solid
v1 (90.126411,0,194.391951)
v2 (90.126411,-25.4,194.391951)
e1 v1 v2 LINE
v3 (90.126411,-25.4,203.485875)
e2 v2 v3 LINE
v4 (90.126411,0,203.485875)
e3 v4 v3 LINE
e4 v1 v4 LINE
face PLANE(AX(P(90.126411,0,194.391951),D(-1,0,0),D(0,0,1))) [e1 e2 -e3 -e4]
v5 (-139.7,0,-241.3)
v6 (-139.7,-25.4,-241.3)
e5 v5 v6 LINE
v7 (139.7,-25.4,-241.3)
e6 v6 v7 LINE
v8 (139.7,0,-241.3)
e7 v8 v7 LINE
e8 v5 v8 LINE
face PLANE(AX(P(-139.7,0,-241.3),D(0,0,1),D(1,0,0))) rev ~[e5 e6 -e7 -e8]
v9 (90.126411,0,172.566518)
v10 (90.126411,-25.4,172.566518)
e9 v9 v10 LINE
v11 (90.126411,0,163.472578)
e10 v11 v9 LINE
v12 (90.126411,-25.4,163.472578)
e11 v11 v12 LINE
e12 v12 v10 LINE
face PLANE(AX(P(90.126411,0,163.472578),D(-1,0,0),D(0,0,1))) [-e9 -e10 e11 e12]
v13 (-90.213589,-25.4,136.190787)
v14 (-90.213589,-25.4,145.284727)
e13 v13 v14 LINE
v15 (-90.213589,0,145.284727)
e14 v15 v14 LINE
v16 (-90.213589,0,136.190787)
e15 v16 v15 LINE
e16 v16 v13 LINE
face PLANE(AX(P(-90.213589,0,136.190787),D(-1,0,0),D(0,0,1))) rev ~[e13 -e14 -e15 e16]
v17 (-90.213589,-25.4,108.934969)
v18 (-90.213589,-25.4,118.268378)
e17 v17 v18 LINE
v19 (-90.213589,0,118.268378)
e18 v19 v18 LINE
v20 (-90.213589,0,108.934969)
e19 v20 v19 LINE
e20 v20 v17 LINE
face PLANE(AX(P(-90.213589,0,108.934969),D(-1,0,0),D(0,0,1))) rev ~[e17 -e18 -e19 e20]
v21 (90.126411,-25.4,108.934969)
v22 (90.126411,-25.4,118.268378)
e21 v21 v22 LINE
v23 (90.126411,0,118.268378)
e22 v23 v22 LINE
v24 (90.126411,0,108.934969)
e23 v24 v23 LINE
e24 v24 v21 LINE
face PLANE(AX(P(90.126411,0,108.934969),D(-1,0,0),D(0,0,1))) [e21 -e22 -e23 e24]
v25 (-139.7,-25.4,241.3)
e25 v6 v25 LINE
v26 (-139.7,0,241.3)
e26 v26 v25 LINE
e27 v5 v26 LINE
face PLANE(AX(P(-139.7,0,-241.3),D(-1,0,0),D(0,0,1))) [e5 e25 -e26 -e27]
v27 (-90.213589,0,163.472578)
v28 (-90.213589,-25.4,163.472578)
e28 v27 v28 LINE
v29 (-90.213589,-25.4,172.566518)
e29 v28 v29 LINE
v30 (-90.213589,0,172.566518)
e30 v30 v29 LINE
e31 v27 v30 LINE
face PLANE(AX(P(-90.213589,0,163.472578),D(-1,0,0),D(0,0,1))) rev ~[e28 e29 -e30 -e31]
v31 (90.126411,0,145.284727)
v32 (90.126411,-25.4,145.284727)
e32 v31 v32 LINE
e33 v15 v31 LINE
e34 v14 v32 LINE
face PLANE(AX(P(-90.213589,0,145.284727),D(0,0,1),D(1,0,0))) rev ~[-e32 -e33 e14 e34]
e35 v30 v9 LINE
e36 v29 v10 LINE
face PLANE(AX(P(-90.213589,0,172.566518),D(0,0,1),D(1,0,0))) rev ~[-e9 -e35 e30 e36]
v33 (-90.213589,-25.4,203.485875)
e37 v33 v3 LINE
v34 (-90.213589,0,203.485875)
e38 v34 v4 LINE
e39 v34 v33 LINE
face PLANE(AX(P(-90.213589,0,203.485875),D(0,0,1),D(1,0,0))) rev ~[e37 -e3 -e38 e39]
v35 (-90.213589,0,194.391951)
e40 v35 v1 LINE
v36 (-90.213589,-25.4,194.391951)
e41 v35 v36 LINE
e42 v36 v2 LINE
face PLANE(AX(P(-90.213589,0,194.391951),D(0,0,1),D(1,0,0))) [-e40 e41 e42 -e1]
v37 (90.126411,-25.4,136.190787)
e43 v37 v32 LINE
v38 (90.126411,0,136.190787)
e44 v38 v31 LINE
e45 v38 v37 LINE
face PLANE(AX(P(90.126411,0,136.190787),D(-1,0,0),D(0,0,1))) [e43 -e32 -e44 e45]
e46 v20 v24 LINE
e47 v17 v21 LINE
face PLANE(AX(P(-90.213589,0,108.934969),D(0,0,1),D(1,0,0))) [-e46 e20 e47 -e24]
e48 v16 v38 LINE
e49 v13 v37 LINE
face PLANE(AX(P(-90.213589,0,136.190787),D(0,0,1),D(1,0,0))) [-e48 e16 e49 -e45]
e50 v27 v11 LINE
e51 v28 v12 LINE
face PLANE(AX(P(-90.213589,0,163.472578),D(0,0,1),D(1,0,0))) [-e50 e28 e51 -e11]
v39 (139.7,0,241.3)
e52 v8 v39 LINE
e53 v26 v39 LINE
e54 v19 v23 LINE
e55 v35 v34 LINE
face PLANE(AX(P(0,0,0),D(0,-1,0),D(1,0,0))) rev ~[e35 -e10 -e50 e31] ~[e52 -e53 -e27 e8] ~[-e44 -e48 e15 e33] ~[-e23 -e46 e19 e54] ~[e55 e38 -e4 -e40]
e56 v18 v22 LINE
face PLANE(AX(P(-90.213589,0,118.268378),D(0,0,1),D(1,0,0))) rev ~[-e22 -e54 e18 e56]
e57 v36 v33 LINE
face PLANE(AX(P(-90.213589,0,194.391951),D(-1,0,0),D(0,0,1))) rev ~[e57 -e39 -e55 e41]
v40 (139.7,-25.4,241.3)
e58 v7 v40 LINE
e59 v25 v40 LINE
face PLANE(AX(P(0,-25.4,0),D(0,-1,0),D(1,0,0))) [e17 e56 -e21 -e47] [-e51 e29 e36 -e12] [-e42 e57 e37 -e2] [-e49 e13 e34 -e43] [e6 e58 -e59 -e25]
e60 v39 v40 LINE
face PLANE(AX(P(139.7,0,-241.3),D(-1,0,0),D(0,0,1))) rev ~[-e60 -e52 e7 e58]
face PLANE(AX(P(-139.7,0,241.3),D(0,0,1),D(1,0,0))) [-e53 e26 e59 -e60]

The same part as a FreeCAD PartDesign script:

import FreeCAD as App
import Part
import Sketcher
from FreeCAD import Vector
Q = App.Units.Quantity


def add_polygon(sketch, points):
    """Adds a closed chain of lines whose ends are joined by coincident constraints."""
    first, n = sketch.GeometryCount, len(points)
    for a, b in zip(points, points[1:] + points[:1]):
        sketch.addGeometry(Part.LineSegment(App.Vector(*a, 0), App.Vector(*b, 0)), False)
    for i in range(n):
        sketch.addConstraint(Sketcher.Constraint("Coincident", first + i, 2, first + (i + 1) % n, 1))

doc = App.newDocument("Part")
body = doc.addObject("PartDesign::Body", "Body")

sketch1 = body.newObject("Sketcher::SketchObject", "Sketch")
sketch1.AttachmentSupport = (doc.getObject("XZ_Plane"), [""])
sketch1.MapMode = "FlatFace"
add_polygon(sketch1, [(-140, 241), (-140, -241), (140, -241), (140, 241)])
add_polygon(sketch1, [(90, 109), (-90, 109), (-90, 118), (90, 118)])
add_polygon(sketch1, [(90, 136), (-90, 136), (-90, 145), (90, 145)])
add_polygon(sketch1, [(90, 163), (-90, 163), (-90, 173), (90, 173)])
add_polygon(sketch1, [(90, 194), (-90, 194), (-90, 203), (90, 203)])
sketch1.addConstraint(Sketcher.Constraint("Vertical", 0))
sketch1.addConstraint(Sketcher.Constraint("Horizontal", 1))
sketch1.addConstraint(Sketcher.Constraint("Vertical", 2))
sketch1.addConstraint(Sketcher.Constraint("Horizontal", 3))
sketch1.addConstraint(Sketcher.Constraint("Horizontal", 4))
sketch1.addConstraint(Sketcher.Constraint("Vertical", 5))
sketch1.addConstraint(Sketcher.Constraint("Horizontal", 6))
sketch1.addConstraint(Sketcher.Constraint("Vertical", 7))
sketch1.addConstraint(Sketcher.Constraint("Horizontal", 8))
sketch1.addConstraint(Sketcher.Constraint("Vertical", 9))
sketch1.addConstraint(Sketcher.Constraint("Horizontal", 10))
sketch1.addConstraint(Sketcher.Constraint("Vertical", 11))
sketch1.addConstraint(Sketcher.Constraint("Horizontal", 12))
sketch1.addConstraint(Sketcher.Constraint("Vertical", 13))
sketch1.addConstraint(Sketcher.Constraint("Horizontal", 14))
sketch1.addConstraint(Sketcher.Constraint("Vertical", 15))
sketch1.addConstraint(Sketcher.Constraint("Horizontal", 16))
sketch1.addConstraint(Sketcher.Constraint("Vertical", 17))
sketch1.addConstraint(Sketcher.Constraint("Horizontal", 18))
sketch1.addConstraint(Sketcher.Constraint("Vertical", 19))
sketch1.addConstraint(Sketcher.Constraint("Symmetric", 0, 2, 2, 2, -1, 1))
sketch1.addConstraint(Sketcher.Constraint("Vertical", 5, 2, 8, 2))
sketch1.addConstraint(Sketcher.Constraint("Vertical", 7, 2, 10, 2))
sketch1.addConstraint(Sketcher.Constraint("Vertical", 9, 2, 12, 2))
sketch1.addConstraint(Sketcher.Constraint("Vertical", 11, 2, 14, 2))
sketch1.addConstraint(Sketcher.Constraint("Vertical", 13, 2, 16, 2))
sketch1.addConstraint(Sketcher.Constraint("Vertical", 15, 2, 18, 2))
sketch1.addConstraint(Sketcher.Constraint("Equal", 11, 13))
sketch1.addConstraint(Sketcher.Constraint("DistanceX", 1, 1, 1, 2, Q("11 in")))
sketch1.addConstraint(Sketcher.Constraint("DistanceY", 0, 2, 0, 1, Q("19 in")))
sketch1.addConstraint(Sketcher.Constraint("DistanceX", 4, 2, 4, 1, Q("7.1 in")))
sketch1.addConstraint(Sketcher.Constraint("DistanceY", 5, 1, 5, 2, Q("9.333409 mm")))
sketch1.addConstraint(Sketcher.Constraint("DistanceY", 9, 1, 9, 2, Q("9.09394 mm")))
sketch1.addConstraint(Sketcher.Constraint("DistanceY", 5, 2, 12, 2, Q("45.2042 mm")))
sketch1.addConstraint(Sketcher.Constraint("DistanceY", 17, 1, 17, 2, Q("9.093925 mm")))
sketch1.addConstraint(Sketcher.Constraint("DistanceX", 4, 2, -1, 1, Q("90.213589 mm")))
sketch1.addConstraint(Sketcher.Constraint("DistanceY", -1, 1, 4, 2, Q("108.934969 mm")))
sketch1.addConstraint(Sketcher.Constraint("DistanceY", -1, 1, 16, 2, Q("194.391951 mm")))
sketch1.addConstraint(Sketcher.Constraint("DistanceY", 5, 2, 8, 2, Q("17.922409 mm")))
pad1 = body.newObject("PartDesign::Pad", "Pad")
pad1.Profile = sketch1
pad1.Length = Q("1 in")

sketch2 = body.newObject("Sketcher::SketchObject", "Sketch001")
sketch2.AttachmentSupport = (doc.getObject("XZ_Plane"), [""])
sketch2.MapMode = "FlatFace"
add_polygon(sketch2, [(-140, 241), (-140, -241), (140, -241), (140, 241)])
add_polygon(sketch2, [(90, 109), (-90, 109), (-90, 118), (90, 118)])
add_polygon(sketch2, [(90, 136), (-90, 136), (-90, 145), (90, 145)])
add_polygon(sketch2, [(90, 163), (-90, 163), (-90, 173), (90, 173)])
add_polygon(sketch2, [(90, 194), (-90, 194), (-90, 203), (90, 203)])
sketch2.addConstraint(Sketcher.Constraint("Vertical", 0))
sketch2.addConstraint(Sketcher.Constraint("Horizontal", 1))
sketch2.addConstraint(Sketcher.Constraint("Vertical", 2))
sketch2.addConstraint(Sketcher.Constraint("Horizontal", 3))
sketch2.addConstraint(Sketcher.Constraint("Horizontal", 4))
sketch2.addConstraint(Sketcher.Constraint("Vertical", 5))
sketch2.addConstraint(Sketcher.Constraint("Horizontal", 6))
sketch2.addConstraint(Sketcher.Constraint("Vertical", 7))
sketch2.addConstraint(Sketcher.Constraint("Horizontal", 8))
sketch2.addConstraint(Sketcher.Constraint("Vertical", 9))
sketch2.addConstraint(Sketcher.Constraint("Horizontal", 10))
sketch2.addConstraint(Sketcher.Constraint("Vertical", 11))
sketch2.addConstraint(Sketcher.Constraint("Horizontal", 12))
sketch2.addConstraint(Sketcher.Constraint("Vertical", 13))
sketch2.addConstraint(Sketcher.Constraint("Horizontal", 14))
sketch2.addConstraint(Sketcher.Constraint("Vertical", 15))
sketch2.addConstraint(Sketcher.Constraint("Horizontal", 16))
sketch2.addConstraint(Sketcher.Constraint("Vertical", 17))
sketch2.addConstraint(Sketcher.Constraint("Horizontal", 18))
sketch2.addConstraint(Sketcher.Constraint("Vertical", 19))
sketch2.addConstraint(Sketcher.Constraint("Symmetric", 0, 2, 2, 2, -1, 1))
sketch2.addConstraint(Sketcher.Constraint("Vertical", 5, 2, 8, 2))
sketch2.addConstraint(Sketcher.Constraint("Vertical", 7, 2, 10, 2))
sketch2.addConstraint(Sketcher.Constraint("Vertical", 9, 2, 12, 2))
sketch2.addConstraint(Sketcher.Constraint("Vertical", 11, 2, 14, 2))
sketch2.addConstraint(Sketcher.Constraint("Vertical", 13, 2, 16, 2))
sketch2.addConstraint(Sketcher.Constraint("Vertical", 15, 2, 18, 2))
sketch2.addConstraint(Sketcher.Constraint("Equal", 11, 13))
sketch2.addConstraint(Sketcher.Constraint("DistanceX", 1, 1, 1, 2, Q("11 in")))
sketch2.addConstraint(Sketcher.Constraint("DistanceY", 0, 2, 0, 1, Q("19 in")))
sketch2.addConstraint(Sketcher.Constraint("DistanceX", 4, 2, 4, 1, Q("7.1 in")))
sketch2.addConstraint(Sketcher.Constraint("DistanceY", 5, 1, 5, 2, Q("9.333409 mm")))
sketch2.addConstraint(Sketcher.Constraint("DistanceY", 9, 1, 9, 2, Q("9.09394 mm")))
sketch2.addConstraint(Sketcher.Constraint("DistanceY", 5, 2, 12, 2, Q("45.2042 mm")))
sketch2.addConstraint(Sketcher.Constraint("DistanceY", 17, 1, 17, 2, Q("9.093925 mm")))
sketch2.addConstraint(Sketcher.Constraint("DistanceX", 4, 2, -1, 1, Q("90.213589 mm")))
sketch2.addConstraint(Sketcher.Constraint("DistanceY", -1, 1, 4, 2, Q("108.934969 mm")))
sketch2.addConstraint(Sketcher.Constraint("DistanceY", -1, 1, 16, 2, Q("194.391951 mm")))
sketch2.addConstraint(Sketcher.Constraint("DistanceY", 5, 2, 8, 2, Q("17.922409 mm")))
pad2 = body.newObject("PartDesign::Pad", "Pad001")
pad2.Profile = sketch2
pad2.Length = Q("1 in")

doc.recompute()
